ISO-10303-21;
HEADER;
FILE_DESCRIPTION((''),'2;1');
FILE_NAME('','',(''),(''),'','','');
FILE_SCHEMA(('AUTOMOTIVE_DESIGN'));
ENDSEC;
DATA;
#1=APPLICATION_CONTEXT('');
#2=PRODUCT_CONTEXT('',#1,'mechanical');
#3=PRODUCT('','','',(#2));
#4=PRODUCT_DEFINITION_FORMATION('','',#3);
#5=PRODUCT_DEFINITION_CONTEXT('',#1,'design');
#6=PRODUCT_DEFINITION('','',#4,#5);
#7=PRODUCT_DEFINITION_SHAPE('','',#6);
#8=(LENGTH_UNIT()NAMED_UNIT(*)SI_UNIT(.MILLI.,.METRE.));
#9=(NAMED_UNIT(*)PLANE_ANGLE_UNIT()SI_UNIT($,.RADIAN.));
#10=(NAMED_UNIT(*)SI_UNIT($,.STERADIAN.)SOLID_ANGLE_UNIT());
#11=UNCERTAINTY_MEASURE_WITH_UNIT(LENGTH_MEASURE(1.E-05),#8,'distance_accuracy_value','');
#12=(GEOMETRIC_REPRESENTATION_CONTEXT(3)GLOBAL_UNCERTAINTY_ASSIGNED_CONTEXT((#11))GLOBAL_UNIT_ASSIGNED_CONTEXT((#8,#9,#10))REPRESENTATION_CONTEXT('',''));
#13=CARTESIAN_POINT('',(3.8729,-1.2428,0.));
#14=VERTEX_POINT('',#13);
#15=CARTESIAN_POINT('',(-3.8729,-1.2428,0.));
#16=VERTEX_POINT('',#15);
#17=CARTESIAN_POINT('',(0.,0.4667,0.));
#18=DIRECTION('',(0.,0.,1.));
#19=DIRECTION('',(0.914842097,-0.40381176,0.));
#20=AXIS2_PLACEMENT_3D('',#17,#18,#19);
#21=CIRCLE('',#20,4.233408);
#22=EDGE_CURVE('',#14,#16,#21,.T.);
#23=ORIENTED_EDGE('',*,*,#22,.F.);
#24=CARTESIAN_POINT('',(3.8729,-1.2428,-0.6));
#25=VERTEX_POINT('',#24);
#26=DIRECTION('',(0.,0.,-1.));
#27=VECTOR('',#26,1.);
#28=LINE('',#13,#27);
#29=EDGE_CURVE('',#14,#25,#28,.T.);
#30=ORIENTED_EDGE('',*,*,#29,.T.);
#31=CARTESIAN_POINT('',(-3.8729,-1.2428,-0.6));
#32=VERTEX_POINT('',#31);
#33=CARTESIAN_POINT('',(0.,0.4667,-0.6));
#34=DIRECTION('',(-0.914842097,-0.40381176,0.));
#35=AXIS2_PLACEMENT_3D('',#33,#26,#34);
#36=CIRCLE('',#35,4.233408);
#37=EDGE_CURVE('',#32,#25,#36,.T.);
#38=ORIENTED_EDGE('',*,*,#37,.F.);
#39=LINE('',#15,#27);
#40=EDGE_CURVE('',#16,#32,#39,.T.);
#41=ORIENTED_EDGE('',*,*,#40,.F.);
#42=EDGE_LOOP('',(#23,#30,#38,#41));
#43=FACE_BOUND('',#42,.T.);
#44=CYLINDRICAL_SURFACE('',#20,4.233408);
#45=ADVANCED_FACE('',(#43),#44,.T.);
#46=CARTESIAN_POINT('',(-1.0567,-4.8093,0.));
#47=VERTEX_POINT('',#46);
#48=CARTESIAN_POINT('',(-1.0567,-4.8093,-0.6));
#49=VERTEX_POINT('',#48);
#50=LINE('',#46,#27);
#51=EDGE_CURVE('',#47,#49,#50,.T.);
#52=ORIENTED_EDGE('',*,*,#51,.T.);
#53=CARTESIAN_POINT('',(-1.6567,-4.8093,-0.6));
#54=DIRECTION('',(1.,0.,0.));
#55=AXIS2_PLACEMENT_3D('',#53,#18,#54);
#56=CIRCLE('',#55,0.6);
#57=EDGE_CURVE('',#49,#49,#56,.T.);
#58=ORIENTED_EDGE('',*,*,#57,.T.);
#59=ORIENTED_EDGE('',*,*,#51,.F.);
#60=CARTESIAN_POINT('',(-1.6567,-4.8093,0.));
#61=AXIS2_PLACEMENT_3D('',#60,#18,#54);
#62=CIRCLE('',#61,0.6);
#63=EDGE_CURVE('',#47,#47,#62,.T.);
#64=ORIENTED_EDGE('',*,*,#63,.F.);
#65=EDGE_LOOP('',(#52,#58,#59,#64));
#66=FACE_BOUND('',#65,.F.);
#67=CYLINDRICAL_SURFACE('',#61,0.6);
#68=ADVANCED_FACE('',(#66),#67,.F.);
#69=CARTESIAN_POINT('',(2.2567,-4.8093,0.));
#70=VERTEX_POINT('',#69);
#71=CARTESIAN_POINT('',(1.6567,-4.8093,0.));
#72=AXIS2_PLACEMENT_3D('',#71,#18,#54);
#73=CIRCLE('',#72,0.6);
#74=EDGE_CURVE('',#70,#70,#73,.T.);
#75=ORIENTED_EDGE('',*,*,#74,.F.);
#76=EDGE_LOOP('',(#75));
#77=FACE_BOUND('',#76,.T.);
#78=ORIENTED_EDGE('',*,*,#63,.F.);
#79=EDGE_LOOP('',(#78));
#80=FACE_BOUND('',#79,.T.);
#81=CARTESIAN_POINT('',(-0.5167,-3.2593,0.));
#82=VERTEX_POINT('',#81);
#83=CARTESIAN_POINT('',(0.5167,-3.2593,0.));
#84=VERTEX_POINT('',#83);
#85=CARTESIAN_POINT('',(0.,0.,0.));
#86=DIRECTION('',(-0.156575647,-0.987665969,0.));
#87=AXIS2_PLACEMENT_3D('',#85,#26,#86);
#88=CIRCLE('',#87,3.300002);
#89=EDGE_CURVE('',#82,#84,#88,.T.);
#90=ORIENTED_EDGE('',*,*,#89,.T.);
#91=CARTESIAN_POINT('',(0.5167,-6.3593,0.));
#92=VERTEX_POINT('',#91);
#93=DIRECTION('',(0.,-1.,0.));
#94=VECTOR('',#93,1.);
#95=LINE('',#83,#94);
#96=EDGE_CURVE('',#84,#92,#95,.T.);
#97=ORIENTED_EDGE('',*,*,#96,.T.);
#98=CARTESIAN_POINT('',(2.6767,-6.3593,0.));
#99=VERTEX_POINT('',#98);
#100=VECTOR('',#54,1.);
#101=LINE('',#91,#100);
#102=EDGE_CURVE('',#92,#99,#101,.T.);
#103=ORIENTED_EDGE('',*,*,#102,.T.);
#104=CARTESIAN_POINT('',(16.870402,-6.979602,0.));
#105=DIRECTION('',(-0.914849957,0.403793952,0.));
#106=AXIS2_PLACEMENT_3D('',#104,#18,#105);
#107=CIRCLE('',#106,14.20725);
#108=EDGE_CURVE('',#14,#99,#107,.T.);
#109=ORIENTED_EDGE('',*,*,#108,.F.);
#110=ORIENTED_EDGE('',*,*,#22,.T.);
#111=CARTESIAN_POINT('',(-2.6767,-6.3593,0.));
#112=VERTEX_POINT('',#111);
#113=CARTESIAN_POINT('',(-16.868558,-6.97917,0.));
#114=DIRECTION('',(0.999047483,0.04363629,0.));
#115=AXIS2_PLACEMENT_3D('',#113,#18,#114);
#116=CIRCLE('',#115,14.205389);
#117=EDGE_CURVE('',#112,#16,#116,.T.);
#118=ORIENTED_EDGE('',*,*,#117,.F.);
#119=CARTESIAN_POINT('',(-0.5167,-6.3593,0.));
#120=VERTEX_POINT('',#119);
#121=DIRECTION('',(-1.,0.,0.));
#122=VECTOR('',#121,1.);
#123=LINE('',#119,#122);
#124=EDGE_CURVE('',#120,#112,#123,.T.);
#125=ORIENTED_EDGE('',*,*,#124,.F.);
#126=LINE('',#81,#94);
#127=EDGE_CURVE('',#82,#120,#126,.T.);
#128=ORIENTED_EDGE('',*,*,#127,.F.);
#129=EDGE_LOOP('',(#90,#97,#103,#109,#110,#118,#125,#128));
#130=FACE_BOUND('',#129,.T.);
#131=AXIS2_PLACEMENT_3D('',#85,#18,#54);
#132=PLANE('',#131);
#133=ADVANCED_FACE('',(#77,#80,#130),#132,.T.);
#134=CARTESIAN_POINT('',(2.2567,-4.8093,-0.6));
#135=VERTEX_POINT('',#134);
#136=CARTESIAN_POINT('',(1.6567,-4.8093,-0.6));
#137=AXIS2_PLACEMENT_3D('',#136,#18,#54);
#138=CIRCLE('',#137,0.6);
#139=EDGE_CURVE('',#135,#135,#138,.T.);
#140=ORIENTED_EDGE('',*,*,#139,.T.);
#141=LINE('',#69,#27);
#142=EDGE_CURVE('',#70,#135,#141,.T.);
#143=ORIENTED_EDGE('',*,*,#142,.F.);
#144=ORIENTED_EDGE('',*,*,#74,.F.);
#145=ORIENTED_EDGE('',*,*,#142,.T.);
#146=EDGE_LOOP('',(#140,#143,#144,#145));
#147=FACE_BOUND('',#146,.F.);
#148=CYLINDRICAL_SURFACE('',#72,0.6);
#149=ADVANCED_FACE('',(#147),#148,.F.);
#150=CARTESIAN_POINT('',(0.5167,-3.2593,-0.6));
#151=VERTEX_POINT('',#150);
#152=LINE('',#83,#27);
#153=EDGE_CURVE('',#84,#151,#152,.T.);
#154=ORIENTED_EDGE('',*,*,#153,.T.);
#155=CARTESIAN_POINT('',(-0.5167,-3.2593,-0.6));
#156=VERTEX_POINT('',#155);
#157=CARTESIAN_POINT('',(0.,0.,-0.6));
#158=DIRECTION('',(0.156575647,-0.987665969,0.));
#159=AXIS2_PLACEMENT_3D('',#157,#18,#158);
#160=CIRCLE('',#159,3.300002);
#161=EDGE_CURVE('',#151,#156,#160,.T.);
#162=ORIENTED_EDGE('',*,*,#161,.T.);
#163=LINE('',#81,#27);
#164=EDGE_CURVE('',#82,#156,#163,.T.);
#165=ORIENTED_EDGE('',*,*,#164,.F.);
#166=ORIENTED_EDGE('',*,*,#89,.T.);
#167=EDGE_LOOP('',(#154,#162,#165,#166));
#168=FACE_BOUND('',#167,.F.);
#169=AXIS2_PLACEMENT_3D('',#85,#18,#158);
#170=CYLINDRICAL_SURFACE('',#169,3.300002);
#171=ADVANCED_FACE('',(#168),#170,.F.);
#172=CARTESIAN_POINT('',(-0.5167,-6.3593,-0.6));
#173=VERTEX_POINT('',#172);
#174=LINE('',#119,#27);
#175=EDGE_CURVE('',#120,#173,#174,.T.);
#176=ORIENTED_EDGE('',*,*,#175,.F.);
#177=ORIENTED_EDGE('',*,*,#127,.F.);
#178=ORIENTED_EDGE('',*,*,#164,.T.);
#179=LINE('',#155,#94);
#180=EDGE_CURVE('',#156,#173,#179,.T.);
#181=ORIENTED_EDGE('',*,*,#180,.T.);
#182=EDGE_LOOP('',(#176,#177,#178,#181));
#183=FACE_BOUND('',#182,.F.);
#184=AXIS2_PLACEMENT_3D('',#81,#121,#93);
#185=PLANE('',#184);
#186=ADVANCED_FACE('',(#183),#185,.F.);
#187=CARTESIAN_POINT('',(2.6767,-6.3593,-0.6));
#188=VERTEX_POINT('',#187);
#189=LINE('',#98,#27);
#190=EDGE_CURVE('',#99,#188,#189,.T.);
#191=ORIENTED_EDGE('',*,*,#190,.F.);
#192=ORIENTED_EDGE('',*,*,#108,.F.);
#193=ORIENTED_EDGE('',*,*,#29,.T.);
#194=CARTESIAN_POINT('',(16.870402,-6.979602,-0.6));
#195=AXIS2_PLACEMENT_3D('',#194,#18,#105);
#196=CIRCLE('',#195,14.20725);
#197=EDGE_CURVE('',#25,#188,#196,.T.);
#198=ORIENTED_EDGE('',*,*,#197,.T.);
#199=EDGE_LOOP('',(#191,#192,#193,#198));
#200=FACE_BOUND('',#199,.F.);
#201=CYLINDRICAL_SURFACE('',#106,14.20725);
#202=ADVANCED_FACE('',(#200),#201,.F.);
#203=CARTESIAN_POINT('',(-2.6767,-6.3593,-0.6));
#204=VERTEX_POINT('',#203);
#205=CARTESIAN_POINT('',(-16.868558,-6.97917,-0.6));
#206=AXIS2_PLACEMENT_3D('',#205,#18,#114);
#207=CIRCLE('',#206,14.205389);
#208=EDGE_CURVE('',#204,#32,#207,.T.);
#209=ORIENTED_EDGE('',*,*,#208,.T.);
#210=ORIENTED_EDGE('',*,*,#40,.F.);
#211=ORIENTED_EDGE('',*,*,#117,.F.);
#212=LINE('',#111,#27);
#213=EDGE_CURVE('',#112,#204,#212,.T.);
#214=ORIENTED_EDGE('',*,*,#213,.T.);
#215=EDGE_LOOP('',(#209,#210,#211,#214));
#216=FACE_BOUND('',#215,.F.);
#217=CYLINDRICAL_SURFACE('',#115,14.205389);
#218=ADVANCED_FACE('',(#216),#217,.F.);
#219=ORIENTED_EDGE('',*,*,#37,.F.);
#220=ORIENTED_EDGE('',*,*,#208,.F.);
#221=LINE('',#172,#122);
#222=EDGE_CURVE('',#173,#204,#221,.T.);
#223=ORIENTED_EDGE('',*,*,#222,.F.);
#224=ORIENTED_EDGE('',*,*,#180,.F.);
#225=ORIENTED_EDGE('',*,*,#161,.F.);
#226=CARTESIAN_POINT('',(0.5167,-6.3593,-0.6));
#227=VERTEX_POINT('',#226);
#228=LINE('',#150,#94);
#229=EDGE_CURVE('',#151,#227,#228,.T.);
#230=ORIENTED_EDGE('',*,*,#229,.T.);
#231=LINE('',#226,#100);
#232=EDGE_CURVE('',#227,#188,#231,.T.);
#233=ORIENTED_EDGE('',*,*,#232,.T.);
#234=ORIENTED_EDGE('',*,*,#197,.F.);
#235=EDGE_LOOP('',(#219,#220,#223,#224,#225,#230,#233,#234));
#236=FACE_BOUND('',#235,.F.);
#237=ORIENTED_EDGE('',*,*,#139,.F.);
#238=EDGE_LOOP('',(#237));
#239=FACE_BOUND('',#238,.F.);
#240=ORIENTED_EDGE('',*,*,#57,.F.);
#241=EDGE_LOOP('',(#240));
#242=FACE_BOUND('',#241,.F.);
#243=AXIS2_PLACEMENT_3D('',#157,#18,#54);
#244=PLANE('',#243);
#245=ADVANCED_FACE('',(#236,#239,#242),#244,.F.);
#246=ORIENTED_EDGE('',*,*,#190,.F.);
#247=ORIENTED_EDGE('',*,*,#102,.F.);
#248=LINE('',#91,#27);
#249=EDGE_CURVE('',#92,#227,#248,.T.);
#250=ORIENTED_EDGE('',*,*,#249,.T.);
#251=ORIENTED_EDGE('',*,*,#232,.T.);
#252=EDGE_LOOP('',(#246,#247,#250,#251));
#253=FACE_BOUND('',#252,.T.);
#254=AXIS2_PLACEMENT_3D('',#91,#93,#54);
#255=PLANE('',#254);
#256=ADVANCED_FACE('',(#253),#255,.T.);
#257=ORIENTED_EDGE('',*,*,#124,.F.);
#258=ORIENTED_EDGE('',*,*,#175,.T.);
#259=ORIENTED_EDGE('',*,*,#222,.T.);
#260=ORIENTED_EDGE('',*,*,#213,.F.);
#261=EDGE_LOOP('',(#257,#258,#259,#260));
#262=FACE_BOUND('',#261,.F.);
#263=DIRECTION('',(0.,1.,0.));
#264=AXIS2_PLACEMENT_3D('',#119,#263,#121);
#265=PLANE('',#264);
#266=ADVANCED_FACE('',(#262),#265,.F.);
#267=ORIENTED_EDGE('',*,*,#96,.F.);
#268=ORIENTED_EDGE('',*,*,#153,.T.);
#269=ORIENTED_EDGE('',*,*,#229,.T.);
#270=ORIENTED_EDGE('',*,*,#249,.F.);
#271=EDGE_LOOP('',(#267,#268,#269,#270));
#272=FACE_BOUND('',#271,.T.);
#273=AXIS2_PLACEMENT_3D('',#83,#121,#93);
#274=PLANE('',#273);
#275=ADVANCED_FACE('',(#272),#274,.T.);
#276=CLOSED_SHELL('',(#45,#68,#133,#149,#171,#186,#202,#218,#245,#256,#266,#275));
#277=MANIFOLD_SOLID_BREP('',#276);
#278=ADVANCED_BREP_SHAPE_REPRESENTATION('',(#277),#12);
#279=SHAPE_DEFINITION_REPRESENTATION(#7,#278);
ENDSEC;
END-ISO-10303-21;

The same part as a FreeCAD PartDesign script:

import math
import FreeCAD as App
import Part
import Sketcher
Q = App.Units.Quantity

doc = App.newDocument("Part")
body = doc.addObject("PartDesign::Body", "Body")

sketch1 = body.newObject("Sketcher::SketchObject", "Sketch")
sketch1.AttachmentSupport = (doc.getObject("XY_Plane"), [""])
sketch1.MapMode = "FlatFace"
sketch1.addGeometry(Part.LineSegment(App.Vector(-2.7, -6.4, 0), App.Vector(-0.5, -6.4, 0)), False)
sketch1.addGeometry(Part.LineSegment(App.Vector(-0.5, -6.4, 0), App.Vector(-0.5, -3.3, 0)), False)
sketch1.addGeometry(Part.ArcOfCircle(Part.Circle(App.Vector(0, 0, 0), App.Vector(0, 0, 1), 3.3), math.radians(-81), math.radians(261)), False)
sketch1.addGeometry(Part.LineSegment(App.Vector(0.5, -3.3, 0), App.Vector(0.5, -6.4, 0)), False)
sketch1.addGeometry(Part.LineSegment(App.Vector(0.5, -6.4, 0), App.Vector(2.7, -6.4, 0)), False)
sketch1.addGeometry(Part.ArcOfCircle(Part.Circle(App.Vector(16.9, -7, 0), App.Vector(0, 0, 1), 14.2), math.radians(156), math.radians(177)), False)
sketch1.addGeometry(Part.ArcOfCircle(Part.Circle(App.Vector(0, 0.5, 0), App.Vector(0, 0, 1), 4.2), math.radians(-24), math.radians(204)), False)
sketch1.addGeometry(Part.ArcOfCircle(Part.Circle(App.Vector(-16.9, -7, 0), App.Vector(0, 0, 1), 14.2), math.radians(3), math.radians(24)), False)
sketch1.addConstraint(Sketcher.Constraint("Coincident", 0, 2, 1, 1))
sketch1.addConstraint(Sketcher.Constraint("Coincident", 1, 2, 2, 2))
sketch1.addConstraint(Sketcher.Constraint("Coincident", 2, 1, 3, 1))
sketch1.addConstraint(Sketcher.Constraint("Coincident", 3, 2, 4, 1))
sketch1.addConstraint(Sketcher.Constraint("Coincident", 4, 2, 5, 2))
sketch1.addConstraint(Sketcher.Constraint("Tangent", 5, 1, 6, 1))
sketch1.addConstraint(Sketcher.Constraint("Tangent", 6, 2, 7, 2))
sketch1.addConstraint(Sketcher.Constraint("Coincident", 7, 1, 0, 1))
sketch1.addConstraint(Sketcher.Constraint("Horizontal", 0))
sketch1.addConstraint(Sketcher.Constraint("Vertical", 1))
sketch1.addConstraint(Sketcher.Constraint("Vertical", 3))
sketch1.addConstraint(Sketcher.Constraint("Horizontal", 4))
sketch1.addConstraint(Sketcher.Constraint("Coincident", 2, 3, -1, 1))
sketch1.addConstraint(Sketcher.Constraint("Equal", 5, 7))
sketch1.addConstraint(Sketcher.Constraint("Symmetric", 5, 3, 7, 3, -2))
sketch1.addConstraint(Sketcher.Constraint("Symmetric", 0, 2, 3, 2, -2))
sketch1.addConstraint(Sketcher.Constraint("Radius", 2, Q("3.3 mm")))
sketch1.addConstraint(Sketcher.Constraint("DistanceY", 1, 1, 1, 2, Q("3.1 mm")))
sketch1.addConstraint(Sketcher.Constraint("DistanceX", 0, 1, 0, 2, Q("2.16 mm")))
sketch1.addConstraint(Sketcher.Constraint("DistanceY", 7, 3, 0, 2, Q("0.62 mm")))
sketch1.addConstraint(Sketcher.Constraint("DistanceY", -1, 1, 6, 3, Q("0.4667 mm")))
sketch1.addConstraint(Sketcher.Constraint("Radius", 5, Q("14.2063 mm")))
sketch1.addConstraint(Sketcher.Constraint("Radius", 6, Q("4.2334 mm")))
pad1 = body.newObject("PartDesign::Pad", "Pad")
pad1.Profile = sketch1
pad1.Length = 0.6
pad1.Reversed = True

sketch2 = body.newObject("Sketcher::SketchObject", "Sketch001")
sketch2.AttachmentSupport = (doc.getObject("XY_Plane"), [""])
sketch2.MapMode = "FlatFace"
sketch2.addGeometry(Part.Circle(App.Vector(-1.7, -4.8, 0), App.Vector(0, 0, 1), 0.6), False)
sketch2.addGeometry(Part.Circle(App.Vector(1.7, -4.8, 0), App.Vector(0, 0, 1), 0.6), False)
sketch2.addConstraint(Sketcher.Constraint("Equal", 0, 1))
sketch2.addConstraint(Sketcher.Constraint("Symmetric", 0, 3, 1, 3, -2))
sketch2.addConstraint(Sketcher.Constraint("Diameter", 0, Q("1.2 mm")))
sketch2.addConstraint(Sketcher.Constraint("DistanceX", 0, 3, 1, 3, Q("3.3134 mm")))
sketch2.addConstraint(Sketcher.Constraint("DistanceY", 0, 3, -1, 1, Q("4.8093 mm")))
pocket1 = body.newObject("PartDesign::Pocket", "Pocket")
pocket1.Profile = sketch2
pocket1.Type = "ThroughAll"

doc.recompute()
